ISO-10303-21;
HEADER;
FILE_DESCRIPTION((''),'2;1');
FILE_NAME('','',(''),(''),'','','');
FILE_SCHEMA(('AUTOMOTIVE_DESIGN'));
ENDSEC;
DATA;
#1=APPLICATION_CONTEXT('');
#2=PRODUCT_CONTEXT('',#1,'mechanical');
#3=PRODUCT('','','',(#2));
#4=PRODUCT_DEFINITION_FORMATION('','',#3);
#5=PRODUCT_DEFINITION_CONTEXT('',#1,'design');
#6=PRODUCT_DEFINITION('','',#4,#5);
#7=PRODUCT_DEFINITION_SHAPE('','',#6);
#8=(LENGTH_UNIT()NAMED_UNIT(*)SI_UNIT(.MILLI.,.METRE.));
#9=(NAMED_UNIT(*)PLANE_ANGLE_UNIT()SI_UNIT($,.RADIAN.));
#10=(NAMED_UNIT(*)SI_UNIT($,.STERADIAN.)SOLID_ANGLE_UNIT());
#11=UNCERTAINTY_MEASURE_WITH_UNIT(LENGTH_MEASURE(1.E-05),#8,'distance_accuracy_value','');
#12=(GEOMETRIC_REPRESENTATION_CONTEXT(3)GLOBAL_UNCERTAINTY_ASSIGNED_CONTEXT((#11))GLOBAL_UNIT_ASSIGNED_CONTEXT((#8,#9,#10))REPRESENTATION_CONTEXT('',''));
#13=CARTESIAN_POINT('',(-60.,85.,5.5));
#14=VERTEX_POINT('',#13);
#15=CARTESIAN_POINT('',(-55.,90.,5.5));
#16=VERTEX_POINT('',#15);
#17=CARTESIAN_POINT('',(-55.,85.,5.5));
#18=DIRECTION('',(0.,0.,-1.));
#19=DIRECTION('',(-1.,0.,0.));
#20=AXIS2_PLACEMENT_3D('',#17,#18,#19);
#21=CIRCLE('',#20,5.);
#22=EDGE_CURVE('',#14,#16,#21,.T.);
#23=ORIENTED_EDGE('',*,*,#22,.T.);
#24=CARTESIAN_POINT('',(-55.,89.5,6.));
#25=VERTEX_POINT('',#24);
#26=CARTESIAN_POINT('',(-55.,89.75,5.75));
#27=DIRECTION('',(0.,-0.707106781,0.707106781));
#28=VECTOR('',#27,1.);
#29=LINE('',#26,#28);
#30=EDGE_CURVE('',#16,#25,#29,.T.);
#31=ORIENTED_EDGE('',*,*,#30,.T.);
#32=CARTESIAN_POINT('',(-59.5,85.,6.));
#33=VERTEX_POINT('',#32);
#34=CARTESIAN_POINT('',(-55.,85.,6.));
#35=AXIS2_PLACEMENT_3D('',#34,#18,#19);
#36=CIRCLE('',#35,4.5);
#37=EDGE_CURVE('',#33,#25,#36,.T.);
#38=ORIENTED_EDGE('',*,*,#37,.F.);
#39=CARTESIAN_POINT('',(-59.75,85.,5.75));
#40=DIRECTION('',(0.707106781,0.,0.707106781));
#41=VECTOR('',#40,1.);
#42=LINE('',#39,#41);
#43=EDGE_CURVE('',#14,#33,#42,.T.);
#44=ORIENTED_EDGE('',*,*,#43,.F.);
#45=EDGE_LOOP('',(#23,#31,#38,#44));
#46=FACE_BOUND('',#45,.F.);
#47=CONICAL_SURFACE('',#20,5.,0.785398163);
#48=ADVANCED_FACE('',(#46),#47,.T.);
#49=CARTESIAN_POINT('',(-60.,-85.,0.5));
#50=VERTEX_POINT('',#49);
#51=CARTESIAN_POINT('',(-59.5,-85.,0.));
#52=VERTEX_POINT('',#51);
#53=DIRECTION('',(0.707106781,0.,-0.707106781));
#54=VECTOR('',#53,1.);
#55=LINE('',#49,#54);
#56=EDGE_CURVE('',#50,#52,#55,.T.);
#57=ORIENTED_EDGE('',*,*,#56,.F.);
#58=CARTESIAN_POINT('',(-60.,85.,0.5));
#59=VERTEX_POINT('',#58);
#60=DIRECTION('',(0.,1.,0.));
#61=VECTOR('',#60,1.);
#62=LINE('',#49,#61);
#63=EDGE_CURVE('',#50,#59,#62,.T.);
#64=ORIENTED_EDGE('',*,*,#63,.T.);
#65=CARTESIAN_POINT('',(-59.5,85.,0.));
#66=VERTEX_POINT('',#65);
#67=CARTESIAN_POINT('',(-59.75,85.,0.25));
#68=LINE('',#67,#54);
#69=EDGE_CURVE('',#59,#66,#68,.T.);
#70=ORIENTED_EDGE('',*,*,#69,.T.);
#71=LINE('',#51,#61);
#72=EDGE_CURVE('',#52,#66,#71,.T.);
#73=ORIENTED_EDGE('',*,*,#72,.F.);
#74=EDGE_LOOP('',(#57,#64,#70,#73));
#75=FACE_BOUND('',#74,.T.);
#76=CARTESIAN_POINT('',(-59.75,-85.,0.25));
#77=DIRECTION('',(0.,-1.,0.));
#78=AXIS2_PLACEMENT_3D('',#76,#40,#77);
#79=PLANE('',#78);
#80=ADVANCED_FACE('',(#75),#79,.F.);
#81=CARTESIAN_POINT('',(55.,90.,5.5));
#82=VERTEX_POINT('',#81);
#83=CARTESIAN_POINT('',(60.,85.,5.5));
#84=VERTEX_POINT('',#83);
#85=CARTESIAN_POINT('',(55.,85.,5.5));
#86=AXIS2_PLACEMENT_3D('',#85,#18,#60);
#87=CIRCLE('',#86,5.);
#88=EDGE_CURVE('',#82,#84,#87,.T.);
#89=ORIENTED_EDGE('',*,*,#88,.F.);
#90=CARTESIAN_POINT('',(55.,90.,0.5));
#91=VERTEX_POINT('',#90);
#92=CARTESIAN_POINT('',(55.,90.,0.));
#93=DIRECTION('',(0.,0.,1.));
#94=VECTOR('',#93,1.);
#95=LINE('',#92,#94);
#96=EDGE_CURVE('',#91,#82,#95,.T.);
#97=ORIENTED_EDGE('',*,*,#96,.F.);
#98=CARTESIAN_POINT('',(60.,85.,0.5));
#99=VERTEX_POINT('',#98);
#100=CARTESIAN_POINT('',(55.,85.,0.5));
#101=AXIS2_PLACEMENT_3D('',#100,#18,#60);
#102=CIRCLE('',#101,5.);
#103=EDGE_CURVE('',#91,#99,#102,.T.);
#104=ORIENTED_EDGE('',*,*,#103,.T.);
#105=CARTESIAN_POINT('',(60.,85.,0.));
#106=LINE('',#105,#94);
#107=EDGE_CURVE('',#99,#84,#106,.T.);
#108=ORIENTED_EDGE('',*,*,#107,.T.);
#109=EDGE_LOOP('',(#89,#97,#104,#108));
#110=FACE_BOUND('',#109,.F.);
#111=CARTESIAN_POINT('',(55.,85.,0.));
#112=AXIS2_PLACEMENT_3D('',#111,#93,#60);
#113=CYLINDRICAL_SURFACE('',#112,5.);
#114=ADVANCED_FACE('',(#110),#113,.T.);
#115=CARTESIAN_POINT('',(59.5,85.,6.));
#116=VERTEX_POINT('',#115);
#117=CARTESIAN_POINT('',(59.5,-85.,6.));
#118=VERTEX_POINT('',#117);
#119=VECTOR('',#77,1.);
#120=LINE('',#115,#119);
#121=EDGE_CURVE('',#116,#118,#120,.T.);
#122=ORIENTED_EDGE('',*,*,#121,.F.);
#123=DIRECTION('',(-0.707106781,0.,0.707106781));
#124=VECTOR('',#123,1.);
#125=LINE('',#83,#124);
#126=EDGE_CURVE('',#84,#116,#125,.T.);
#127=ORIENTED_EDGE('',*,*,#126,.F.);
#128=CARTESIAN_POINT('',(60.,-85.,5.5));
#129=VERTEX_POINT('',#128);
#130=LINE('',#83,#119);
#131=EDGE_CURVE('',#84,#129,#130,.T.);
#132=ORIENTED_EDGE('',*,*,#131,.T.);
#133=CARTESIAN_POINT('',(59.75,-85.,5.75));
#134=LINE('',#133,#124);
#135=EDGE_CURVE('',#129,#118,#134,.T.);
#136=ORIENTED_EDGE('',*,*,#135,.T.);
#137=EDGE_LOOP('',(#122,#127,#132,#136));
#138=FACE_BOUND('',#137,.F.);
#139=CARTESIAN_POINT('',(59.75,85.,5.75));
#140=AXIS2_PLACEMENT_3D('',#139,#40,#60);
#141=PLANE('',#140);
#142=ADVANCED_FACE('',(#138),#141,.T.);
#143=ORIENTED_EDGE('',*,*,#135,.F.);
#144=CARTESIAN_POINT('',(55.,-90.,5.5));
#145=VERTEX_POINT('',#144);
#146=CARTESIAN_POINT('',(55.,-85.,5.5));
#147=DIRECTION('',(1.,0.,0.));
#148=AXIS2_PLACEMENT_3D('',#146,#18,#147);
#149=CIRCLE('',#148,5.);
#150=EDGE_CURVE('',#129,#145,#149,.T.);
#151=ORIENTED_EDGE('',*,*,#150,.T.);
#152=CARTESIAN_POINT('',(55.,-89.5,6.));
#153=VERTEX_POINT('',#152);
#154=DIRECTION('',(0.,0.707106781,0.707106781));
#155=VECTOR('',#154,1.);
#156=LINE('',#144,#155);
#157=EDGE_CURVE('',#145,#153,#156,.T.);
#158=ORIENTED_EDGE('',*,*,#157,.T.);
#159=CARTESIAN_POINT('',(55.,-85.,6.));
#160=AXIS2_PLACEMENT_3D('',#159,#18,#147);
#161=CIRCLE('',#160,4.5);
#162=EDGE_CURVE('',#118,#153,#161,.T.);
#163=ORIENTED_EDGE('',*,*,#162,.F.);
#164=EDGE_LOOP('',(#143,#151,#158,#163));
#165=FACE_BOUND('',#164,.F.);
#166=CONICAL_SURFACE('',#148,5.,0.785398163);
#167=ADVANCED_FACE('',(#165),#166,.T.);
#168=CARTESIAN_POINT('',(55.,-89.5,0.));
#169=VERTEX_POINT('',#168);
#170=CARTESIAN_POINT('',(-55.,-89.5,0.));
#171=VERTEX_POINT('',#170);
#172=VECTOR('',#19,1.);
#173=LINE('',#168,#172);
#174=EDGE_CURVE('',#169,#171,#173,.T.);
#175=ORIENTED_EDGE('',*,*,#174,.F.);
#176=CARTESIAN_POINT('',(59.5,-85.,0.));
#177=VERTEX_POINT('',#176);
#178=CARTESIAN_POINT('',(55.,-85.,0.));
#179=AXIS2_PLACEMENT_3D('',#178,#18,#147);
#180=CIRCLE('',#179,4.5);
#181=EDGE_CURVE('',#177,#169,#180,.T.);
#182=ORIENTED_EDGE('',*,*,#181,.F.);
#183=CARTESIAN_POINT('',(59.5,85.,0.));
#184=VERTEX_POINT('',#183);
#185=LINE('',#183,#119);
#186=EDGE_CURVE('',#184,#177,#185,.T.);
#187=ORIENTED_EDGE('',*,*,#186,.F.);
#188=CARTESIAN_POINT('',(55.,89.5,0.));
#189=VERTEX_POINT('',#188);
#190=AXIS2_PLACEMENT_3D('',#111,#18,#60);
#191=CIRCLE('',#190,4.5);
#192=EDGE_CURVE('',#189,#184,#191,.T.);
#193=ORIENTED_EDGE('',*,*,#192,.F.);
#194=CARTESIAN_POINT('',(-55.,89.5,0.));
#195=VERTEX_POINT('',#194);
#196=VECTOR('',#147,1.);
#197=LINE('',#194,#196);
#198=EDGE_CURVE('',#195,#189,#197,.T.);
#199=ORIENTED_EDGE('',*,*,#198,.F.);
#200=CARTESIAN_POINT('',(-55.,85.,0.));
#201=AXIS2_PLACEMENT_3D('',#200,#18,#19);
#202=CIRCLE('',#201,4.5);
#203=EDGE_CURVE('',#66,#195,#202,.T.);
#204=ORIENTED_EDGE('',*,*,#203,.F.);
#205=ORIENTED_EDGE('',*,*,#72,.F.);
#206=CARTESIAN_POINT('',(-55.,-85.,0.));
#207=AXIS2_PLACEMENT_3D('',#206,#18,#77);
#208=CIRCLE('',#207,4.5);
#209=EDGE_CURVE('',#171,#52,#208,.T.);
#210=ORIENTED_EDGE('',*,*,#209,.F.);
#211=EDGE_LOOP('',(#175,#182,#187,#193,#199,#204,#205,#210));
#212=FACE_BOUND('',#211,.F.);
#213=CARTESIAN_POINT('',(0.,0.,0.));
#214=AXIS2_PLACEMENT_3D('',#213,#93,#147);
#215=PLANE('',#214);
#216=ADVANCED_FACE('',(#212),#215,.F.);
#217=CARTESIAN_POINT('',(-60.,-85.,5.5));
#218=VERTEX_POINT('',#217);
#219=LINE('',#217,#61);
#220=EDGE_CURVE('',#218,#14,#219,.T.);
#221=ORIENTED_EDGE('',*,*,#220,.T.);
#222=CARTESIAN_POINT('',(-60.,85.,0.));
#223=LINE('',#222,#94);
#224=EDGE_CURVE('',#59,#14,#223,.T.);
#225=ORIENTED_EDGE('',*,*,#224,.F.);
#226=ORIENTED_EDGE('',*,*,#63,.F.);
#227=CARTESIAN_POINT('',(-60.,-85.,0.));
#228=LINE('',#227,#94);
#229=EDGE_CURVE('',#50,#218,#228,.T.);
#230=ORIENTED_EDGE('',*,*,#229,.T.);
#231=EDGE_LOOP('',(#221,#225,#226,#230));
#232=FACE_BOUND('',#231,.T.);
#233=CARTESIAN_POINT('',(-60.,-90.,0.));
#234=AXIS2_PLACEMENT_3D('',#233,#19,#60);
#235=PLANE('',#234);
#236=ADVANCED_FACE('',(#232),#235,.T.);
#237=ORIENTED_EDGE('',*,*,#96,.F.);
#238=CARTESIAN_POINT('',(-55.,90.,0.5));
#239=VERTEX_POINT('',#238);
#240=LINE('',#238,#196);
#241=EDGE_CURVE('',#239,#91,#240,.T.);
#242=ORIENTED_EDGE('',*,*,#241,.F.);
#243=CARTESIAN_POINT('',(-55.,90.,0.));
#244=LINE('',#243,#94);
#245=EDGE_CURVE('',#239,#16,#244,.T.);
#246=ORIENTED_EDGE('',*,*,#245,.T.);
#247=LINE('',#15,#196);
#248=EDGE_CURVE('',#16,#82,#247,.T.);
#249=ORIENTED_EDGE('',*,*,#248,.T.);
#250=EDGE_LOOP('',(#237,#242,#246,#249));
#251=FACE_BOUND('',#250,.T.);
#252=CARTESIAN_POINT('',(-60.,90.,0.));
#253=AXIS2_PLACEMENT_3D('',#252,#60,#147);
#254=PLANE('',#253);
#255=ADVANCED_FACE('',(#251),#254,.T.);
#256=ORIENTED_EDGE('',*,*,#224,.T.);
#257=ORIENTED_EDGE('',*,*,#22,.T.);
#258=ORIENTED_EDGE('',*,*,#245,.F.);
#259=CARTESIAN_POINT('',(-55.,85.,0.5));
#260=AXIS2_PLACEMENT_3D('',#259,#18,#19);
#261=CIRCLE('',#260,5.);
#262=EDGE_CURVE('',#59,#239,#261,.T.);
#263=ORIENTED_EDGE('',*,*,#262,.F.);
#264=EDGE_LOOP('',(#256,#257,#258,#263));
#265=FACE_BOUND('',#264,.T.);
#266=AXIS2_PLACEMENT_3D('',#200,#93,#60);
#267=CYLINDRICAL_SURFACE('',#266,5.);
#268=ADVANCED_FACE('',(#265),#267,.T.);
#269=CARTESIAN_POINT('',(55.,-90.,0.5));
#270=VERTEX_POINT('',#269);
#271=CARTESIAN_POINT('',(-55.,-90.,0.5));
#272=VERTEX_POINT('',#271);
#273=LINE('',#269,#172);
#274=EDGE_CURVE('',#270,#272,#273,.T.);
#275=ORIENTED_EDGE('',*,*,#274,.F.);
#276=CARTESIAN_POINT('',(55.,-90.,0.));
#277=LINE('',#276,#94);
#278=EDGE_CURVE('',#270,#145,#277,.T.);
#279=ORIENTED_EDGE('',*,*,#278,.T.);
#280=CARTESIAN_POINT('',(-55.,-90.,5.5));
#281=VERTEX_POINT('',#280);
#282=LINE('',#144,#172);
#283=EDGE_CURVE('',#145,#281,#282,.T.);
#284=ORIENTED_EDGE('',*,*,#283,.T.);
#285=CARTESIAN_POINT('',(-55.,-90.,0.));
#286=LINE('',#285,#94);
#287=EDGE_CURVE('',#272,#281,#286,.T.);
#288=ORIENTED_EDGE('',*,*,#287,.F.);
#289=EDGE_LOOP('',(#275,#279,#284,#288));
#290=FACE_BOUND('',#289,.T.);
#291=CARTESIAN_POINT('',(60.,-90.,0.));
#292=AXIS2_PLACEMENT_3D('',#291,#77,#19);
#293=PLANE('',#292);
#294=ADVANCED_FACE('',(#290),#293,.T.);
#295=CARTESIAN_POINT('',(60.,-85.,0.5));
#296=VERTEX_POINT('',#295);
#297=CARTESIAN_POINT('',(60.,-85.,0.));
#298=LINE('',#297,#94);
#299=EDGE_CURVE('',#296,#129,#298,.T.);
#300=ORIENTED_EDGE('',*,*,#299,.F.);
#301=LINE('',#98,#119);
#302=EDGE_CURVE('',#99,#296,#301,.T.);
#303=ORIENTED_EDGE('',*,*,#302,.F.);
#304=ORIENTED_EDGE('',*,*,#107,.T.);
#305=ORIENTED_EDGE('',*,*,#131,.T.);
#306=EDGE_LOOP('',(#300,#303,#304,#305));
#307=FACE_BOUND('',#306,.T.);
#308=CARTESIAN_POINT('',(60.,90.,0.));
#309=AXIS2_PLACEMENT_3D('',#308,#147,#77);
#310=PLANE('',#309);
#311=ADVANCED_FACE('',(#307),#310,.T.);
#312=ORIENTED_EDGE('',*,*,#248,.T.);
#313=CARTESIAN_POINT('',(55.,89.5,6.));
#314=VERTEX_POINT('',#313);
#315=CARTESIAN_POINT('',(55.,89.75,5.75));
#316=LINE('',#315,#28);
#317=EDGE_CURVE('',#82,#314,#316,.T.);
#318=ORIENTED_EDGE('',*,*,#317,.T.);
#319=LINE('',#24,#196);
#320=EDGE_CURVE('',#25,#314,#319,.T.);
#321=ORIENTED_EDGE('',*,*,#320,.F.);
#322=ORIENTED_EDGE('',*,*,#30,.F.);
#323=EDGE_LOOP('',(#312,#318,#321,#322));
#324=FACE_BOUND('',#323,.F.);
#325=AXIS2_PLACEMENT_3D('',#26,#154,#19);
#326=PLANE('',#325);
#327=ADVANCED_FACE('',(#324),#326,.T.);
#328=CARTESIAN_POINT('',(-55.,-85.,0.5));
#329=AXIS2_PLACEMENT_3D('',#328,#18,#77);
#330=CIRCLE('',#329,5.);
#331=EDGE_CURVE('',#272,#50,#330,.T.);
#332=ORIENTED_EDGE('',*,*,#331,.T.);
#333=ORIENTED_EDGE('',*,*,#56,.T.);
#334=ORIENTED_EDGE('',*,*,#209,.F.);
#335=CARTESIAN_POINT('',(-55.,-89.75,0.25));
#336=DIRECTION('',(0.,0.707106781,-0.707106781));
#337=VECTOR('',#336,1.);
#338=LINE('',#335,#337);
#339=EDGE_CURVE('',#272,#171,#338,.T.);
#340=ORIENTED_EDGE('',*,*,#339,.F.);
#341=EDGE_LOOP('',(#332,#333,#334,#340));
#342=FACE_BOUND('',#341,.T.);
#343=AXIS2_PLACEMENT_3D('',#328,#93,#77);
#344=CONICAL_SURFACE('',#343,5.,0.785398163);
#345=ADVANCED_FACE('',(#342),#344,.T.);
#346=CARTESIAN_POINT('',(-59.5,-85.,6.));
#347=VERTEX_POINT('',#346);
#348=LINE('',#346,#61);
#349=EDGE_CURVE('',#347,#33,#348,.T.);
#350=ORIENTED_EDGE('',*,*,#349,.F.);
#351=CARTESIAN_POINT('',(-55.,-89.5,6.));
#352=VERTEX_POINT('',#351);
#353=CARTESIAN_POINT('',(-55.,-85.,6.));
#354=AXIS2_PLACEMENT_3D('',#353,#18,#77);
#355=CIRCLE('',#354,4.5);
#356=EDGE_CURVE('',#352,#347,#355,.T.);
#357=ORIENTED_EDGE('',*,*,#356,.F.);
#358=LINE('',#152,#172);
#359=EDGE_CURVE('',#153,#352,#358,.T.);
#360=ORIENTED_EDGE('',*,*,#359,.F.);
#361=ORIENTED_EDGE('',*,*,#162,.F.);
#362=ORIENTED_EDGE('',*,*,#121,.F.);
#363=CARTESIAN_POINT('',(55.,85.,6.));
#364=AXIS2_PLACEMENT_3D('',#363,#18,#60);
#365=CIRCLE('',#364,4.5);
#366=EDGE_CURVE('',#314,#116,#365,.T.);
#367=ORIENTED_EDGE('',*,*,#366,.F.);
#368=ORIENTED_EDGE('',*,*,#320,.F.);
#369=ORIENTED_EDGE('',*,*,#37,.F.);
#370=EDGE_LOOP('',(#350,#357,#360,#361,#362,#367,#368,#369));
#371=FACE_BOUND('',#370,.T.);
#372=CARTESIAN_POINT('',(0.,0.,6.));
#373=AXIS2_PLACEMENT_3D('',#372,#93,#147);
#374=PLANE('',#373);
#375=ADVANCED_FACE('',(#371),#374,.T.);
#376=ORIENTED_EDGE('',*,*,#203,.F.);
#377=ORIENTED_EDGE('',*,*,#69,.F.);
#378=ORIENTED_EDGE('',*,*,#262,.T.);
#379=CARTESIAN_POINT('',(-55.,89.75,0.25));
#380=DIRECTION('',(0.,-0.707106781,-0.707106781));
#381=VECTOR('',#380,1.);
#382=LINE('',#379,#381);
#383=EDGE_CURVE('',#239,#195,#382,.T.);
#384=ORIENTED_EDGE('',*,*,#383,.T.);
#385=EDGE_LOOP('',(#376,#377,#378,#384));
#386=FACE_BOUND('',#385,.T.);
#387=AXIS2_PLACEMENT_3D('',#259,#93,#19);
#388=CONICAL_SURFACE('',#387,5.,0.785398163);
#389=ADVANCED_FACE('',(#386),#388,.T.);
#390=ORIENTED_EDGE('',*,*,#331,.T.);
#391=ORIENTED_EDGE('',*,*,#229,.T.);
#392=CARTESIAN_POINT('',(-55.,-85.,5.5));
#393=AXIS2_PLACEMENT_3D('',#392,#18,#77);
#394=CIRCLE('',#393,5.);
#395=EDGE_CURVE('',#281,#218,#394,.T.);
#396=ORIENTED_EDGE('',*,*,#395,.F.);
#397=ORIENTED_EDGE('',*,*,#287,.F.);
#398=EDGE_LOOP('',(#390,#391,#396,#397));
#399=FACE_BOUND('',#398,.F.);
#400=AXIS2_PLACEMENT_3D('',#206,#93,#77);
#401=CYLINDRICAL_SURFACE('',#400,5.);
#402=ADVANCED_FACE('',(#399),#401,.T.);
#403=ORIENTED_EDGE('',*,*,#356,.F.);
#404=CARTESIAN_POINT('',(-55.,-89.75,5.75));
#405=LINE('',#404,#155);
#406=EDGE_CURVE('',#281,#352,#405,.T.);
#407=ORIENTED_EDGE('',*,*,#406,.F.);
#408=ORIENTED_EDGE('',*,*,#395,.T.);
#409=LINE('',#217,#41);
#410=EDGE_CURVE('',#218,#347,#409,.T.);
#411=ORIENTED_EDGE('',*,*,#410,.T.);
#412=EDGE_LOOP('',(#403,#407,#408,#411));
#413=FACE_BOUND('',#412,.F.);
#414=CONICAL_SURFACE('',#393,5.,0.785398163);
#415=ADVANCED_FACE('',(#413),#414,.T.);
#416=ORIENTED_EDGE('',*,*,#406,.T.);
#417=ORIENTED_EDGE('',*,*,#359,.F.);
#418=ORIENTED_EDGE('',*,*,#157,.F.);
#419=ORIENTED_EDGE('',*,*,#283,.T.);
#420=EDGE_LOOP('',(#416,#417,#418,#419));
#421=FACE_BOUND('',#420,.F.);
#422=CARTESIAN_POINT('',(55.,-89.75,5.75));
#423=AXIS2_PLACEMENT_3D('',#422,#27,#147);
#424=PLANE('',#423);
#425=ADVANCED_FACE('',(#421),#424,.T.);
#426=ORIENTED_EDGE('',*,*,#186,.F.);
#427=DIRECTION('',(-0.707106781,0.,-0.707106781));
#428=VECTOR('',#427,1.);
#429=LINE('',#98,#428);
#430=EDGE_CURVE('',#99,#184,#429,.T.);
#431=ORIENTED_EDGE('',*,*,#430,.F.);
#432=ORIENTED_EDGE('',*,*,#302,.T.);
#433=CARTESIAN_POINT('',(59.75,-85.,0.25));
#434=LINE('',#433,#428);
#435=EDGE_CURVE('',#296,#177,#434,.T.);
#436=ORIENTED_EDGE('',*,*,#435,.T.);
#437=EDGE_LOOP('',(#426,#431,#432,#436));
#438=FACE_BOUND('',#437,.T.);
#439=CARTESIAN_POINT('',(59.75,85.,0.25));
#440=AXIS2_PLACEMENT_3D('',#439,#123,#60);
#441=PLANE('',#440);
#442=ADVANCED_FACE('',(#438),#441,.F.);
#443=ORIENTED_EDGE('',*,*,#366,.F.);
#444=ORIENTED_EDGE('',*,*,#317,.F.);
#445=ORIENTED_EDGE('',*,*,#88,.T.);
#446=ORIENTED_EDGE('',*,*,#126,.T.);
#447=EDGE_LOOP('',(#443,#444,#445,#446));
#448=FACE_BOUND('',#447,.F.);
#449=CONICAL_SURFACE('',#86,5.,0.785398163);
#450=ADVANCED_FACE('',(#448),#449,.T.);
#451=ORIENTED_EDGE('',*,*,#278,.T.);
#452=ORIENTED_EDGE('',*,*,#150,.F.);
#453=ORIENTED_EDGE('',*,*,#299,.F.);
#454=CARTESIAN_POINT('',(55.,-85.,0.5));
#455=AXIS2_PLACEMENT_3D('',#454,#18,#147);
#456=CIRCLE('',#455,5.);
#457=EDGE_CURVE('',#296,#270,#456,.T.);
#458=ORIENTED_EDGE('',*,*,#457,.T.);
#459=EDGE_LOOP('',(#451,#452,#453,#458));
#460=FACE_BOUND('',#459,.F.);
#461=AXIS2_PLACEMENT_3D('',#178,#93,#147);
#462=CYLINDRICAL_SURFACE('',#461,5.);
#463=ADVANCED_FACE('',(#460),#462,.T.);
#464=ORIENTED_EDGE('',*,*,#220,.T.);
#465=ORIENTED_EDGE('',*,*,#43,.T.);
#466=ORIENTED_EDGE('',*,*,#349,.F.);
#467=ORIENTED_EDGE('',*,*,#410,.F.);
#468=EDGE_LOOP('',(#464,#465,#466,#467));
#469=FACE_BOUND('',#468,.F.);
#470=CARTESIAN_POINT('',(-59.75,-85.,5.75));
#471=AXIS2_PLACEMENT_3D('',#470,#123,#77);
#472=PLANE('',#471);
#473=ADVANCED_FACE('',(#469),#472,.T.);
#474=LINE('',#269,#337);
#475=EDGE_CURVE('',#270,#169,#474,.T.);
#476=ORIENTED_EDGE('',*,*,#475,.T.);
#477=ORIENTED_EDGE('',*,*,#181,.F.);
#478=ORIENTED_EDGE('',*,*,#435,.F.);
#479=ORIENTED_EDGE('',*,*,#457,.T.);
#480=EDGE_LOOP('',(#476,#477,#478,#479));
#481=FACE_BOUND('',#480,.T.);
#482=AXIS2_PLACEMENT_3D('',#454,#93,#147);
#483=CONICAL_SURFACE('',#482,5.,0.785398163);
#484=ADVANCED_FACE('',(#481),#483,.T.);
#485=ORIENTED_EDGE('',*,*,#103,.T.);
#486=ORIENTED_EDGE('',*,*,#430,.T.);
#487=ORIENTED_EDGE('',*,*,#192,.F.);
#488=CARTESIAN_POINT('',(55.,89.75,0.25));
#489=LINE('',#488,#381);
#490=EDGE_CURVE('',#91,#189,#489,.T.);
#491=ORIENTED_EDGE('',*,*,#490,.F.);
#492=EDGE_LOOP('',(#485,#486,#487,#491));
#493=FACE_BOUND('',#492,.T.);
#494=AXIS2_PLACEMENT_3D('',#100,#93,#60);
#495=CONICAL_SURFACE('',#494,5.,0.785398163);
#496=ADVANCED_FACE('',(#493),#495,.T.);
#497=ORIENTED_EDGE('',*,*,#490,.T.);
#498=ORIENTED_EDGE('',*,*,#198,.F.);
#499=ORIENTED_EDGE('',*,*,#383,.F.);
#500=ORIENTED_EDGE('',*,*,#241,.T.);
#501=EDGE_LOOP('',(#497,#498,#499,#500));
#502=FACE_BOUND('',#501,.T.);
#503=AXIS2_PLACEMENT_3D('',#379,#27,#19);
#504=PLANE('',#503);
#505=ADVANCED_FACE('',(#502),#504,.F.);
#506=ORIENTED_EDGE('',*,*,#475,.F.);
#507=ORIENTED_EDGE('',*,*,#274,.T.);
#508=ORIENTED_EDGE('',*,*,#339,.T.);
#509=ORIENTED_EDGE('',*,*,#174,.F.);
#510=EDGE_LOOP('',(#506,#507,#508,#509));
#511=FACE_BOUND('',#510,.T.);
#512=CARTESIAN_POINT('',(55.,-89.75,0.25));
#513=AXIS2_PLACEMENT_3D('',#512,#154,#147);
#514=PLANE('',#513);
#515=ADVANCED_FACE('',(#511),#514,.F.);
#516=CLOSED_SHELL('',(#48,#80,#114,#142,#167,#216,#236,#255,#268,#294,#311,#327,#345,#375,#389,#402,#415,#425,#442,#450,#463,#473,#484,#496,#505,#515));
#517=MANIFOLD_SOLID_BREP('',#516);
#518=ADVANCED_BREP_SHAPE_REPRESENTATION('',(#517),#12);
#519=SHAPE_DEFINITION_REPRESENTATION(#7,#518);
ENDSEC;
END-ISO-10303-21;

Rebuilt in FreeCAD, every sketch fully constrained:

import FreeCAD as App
import Part
import Sketcher

V = App.Vector


def edges_at(feature, points):
    """Names of the edges that pass closest to the given points."""
    edges = feature.Shape.Edges
    near = lambda p: min(range(len(edges)), key=lambda i: edges[i].distToShape(Part.Vertex(*p))[0])
    return sorted({f"Edge{near(p) + 1}" for p in points})

doc = App.newDocument("Part")
params = doc.addObject("Spreadsheet::Sheet", "Params")
for row, (alias, value) in enumerate([
    ("sketch1_width", "120 mm"),
    ("sketch1_height", "180 mm"),
    ("pad1_length", "6 mm"),
    ("fillet_radius", "5 mm"),
    ("chamfer_size", "0.5 mm"),
], start=1):
    params.set(f"A{row}", alias)
    params.set(f"B{row}", "=" + value)
    params.setAlias(f"B{row}", alias)

body = doc.addObject("PartDesign::Body", "Body")

sketch1 = body.newObject("Sketcher::SketchObject", "Sketch")
sketch1.AttachmentSupport = (doc.getObject("XY_Plane"), [""])
sketch1.MapMode = "FlatFace"
sketch1.addGeometry([
    Part.LineSegment(V(60, 90, 0), V(-60, 90, 0)),
    Part.LineSegment(V(-60, 90, 0), V(-60, -90, 0)),
    Part.LineSegment(V(-60, -90, 0), V(60, -90, 0)),
    Part.LineSegment(V(60, -90, 0), V(60, 90, 0)),
], False)
sketch1.addConstraint([
    Sketcher.Constraint("Coincident", 0, 2, 1, 1),
    Sketcher.Constraint("Coincident", 1, 2, 2, 1),
    Sketcher.Constraint("Coincident", 2, 2, 3, 1),
    Sketcher.Constraint("Coincident", 3, 2, 0, 1),
    Sketcher.Constraint("Horizontal", 0),
    Sketcher.Constraint("Vertical", 1),
    Sketcher.Constraint("Horizontal", 2),
    Sketcher.Constraint("Vertical", 3),
    Sketcher.Constraint("Symmetric", 0, 2, 2, 2, -1, 1),
    Sketcher.Constraint("DistanceX", 0, 2, 0, 1, 120.0),
    Sketcher.Constraint("DistanceY", 1, 2, 1, 1, 180.0),
])
sketch1.setExpression("Constraints[9]", "Params.sketch1_width")
sketch1.setExpression("Constraints[10]", "Params.sketch1_height")
pad1 = body.newObject("PartDesign::Pad", "Pad")
pad1.Profile = sketch1
pad1.setExpression("Length", "Params.pad1_length")
doc.recompute()

fillet = body.newObject("PartDesign::Fillet", "Fillet")
fillet.Base = (pad1, edges_at(pad1, [
    (-60, 90, 3),
    (60, 90, 3),
    (60, -90, 3),
    (-60, -90, 3),
]))
fillet.setExpression("Radius", "Params.fillet_radius")
doc.recompute()

chamfer = body.newObject("PartDesign::Chamfer", "Chamfer")
chamfer.Base = (fillet, edges_at(fillet, [
    (0, 90, 6),
    (-58.535, 88.535, 6),
    (-60, 0, 6),
    (-58.535, -88.535, 6),
    (0, -90, 6),
    (58.535, -88.535, 6),
    (60, 0, 6),
    (58.535, 88.535, 6),
    (0, 90, 0),
    (-58.535, 88.535, 0),
    (-60, 0, 0),
    (-58.535, -88.535, 0),
    (0, -90, 0),
    (58.535, -88.535, 0),
    (60, 0, 0),
    (58.535, 88.535, 0),
]))
chamfer.setExpression("Size", "Params.chamfer_size")

doc.recompute()
